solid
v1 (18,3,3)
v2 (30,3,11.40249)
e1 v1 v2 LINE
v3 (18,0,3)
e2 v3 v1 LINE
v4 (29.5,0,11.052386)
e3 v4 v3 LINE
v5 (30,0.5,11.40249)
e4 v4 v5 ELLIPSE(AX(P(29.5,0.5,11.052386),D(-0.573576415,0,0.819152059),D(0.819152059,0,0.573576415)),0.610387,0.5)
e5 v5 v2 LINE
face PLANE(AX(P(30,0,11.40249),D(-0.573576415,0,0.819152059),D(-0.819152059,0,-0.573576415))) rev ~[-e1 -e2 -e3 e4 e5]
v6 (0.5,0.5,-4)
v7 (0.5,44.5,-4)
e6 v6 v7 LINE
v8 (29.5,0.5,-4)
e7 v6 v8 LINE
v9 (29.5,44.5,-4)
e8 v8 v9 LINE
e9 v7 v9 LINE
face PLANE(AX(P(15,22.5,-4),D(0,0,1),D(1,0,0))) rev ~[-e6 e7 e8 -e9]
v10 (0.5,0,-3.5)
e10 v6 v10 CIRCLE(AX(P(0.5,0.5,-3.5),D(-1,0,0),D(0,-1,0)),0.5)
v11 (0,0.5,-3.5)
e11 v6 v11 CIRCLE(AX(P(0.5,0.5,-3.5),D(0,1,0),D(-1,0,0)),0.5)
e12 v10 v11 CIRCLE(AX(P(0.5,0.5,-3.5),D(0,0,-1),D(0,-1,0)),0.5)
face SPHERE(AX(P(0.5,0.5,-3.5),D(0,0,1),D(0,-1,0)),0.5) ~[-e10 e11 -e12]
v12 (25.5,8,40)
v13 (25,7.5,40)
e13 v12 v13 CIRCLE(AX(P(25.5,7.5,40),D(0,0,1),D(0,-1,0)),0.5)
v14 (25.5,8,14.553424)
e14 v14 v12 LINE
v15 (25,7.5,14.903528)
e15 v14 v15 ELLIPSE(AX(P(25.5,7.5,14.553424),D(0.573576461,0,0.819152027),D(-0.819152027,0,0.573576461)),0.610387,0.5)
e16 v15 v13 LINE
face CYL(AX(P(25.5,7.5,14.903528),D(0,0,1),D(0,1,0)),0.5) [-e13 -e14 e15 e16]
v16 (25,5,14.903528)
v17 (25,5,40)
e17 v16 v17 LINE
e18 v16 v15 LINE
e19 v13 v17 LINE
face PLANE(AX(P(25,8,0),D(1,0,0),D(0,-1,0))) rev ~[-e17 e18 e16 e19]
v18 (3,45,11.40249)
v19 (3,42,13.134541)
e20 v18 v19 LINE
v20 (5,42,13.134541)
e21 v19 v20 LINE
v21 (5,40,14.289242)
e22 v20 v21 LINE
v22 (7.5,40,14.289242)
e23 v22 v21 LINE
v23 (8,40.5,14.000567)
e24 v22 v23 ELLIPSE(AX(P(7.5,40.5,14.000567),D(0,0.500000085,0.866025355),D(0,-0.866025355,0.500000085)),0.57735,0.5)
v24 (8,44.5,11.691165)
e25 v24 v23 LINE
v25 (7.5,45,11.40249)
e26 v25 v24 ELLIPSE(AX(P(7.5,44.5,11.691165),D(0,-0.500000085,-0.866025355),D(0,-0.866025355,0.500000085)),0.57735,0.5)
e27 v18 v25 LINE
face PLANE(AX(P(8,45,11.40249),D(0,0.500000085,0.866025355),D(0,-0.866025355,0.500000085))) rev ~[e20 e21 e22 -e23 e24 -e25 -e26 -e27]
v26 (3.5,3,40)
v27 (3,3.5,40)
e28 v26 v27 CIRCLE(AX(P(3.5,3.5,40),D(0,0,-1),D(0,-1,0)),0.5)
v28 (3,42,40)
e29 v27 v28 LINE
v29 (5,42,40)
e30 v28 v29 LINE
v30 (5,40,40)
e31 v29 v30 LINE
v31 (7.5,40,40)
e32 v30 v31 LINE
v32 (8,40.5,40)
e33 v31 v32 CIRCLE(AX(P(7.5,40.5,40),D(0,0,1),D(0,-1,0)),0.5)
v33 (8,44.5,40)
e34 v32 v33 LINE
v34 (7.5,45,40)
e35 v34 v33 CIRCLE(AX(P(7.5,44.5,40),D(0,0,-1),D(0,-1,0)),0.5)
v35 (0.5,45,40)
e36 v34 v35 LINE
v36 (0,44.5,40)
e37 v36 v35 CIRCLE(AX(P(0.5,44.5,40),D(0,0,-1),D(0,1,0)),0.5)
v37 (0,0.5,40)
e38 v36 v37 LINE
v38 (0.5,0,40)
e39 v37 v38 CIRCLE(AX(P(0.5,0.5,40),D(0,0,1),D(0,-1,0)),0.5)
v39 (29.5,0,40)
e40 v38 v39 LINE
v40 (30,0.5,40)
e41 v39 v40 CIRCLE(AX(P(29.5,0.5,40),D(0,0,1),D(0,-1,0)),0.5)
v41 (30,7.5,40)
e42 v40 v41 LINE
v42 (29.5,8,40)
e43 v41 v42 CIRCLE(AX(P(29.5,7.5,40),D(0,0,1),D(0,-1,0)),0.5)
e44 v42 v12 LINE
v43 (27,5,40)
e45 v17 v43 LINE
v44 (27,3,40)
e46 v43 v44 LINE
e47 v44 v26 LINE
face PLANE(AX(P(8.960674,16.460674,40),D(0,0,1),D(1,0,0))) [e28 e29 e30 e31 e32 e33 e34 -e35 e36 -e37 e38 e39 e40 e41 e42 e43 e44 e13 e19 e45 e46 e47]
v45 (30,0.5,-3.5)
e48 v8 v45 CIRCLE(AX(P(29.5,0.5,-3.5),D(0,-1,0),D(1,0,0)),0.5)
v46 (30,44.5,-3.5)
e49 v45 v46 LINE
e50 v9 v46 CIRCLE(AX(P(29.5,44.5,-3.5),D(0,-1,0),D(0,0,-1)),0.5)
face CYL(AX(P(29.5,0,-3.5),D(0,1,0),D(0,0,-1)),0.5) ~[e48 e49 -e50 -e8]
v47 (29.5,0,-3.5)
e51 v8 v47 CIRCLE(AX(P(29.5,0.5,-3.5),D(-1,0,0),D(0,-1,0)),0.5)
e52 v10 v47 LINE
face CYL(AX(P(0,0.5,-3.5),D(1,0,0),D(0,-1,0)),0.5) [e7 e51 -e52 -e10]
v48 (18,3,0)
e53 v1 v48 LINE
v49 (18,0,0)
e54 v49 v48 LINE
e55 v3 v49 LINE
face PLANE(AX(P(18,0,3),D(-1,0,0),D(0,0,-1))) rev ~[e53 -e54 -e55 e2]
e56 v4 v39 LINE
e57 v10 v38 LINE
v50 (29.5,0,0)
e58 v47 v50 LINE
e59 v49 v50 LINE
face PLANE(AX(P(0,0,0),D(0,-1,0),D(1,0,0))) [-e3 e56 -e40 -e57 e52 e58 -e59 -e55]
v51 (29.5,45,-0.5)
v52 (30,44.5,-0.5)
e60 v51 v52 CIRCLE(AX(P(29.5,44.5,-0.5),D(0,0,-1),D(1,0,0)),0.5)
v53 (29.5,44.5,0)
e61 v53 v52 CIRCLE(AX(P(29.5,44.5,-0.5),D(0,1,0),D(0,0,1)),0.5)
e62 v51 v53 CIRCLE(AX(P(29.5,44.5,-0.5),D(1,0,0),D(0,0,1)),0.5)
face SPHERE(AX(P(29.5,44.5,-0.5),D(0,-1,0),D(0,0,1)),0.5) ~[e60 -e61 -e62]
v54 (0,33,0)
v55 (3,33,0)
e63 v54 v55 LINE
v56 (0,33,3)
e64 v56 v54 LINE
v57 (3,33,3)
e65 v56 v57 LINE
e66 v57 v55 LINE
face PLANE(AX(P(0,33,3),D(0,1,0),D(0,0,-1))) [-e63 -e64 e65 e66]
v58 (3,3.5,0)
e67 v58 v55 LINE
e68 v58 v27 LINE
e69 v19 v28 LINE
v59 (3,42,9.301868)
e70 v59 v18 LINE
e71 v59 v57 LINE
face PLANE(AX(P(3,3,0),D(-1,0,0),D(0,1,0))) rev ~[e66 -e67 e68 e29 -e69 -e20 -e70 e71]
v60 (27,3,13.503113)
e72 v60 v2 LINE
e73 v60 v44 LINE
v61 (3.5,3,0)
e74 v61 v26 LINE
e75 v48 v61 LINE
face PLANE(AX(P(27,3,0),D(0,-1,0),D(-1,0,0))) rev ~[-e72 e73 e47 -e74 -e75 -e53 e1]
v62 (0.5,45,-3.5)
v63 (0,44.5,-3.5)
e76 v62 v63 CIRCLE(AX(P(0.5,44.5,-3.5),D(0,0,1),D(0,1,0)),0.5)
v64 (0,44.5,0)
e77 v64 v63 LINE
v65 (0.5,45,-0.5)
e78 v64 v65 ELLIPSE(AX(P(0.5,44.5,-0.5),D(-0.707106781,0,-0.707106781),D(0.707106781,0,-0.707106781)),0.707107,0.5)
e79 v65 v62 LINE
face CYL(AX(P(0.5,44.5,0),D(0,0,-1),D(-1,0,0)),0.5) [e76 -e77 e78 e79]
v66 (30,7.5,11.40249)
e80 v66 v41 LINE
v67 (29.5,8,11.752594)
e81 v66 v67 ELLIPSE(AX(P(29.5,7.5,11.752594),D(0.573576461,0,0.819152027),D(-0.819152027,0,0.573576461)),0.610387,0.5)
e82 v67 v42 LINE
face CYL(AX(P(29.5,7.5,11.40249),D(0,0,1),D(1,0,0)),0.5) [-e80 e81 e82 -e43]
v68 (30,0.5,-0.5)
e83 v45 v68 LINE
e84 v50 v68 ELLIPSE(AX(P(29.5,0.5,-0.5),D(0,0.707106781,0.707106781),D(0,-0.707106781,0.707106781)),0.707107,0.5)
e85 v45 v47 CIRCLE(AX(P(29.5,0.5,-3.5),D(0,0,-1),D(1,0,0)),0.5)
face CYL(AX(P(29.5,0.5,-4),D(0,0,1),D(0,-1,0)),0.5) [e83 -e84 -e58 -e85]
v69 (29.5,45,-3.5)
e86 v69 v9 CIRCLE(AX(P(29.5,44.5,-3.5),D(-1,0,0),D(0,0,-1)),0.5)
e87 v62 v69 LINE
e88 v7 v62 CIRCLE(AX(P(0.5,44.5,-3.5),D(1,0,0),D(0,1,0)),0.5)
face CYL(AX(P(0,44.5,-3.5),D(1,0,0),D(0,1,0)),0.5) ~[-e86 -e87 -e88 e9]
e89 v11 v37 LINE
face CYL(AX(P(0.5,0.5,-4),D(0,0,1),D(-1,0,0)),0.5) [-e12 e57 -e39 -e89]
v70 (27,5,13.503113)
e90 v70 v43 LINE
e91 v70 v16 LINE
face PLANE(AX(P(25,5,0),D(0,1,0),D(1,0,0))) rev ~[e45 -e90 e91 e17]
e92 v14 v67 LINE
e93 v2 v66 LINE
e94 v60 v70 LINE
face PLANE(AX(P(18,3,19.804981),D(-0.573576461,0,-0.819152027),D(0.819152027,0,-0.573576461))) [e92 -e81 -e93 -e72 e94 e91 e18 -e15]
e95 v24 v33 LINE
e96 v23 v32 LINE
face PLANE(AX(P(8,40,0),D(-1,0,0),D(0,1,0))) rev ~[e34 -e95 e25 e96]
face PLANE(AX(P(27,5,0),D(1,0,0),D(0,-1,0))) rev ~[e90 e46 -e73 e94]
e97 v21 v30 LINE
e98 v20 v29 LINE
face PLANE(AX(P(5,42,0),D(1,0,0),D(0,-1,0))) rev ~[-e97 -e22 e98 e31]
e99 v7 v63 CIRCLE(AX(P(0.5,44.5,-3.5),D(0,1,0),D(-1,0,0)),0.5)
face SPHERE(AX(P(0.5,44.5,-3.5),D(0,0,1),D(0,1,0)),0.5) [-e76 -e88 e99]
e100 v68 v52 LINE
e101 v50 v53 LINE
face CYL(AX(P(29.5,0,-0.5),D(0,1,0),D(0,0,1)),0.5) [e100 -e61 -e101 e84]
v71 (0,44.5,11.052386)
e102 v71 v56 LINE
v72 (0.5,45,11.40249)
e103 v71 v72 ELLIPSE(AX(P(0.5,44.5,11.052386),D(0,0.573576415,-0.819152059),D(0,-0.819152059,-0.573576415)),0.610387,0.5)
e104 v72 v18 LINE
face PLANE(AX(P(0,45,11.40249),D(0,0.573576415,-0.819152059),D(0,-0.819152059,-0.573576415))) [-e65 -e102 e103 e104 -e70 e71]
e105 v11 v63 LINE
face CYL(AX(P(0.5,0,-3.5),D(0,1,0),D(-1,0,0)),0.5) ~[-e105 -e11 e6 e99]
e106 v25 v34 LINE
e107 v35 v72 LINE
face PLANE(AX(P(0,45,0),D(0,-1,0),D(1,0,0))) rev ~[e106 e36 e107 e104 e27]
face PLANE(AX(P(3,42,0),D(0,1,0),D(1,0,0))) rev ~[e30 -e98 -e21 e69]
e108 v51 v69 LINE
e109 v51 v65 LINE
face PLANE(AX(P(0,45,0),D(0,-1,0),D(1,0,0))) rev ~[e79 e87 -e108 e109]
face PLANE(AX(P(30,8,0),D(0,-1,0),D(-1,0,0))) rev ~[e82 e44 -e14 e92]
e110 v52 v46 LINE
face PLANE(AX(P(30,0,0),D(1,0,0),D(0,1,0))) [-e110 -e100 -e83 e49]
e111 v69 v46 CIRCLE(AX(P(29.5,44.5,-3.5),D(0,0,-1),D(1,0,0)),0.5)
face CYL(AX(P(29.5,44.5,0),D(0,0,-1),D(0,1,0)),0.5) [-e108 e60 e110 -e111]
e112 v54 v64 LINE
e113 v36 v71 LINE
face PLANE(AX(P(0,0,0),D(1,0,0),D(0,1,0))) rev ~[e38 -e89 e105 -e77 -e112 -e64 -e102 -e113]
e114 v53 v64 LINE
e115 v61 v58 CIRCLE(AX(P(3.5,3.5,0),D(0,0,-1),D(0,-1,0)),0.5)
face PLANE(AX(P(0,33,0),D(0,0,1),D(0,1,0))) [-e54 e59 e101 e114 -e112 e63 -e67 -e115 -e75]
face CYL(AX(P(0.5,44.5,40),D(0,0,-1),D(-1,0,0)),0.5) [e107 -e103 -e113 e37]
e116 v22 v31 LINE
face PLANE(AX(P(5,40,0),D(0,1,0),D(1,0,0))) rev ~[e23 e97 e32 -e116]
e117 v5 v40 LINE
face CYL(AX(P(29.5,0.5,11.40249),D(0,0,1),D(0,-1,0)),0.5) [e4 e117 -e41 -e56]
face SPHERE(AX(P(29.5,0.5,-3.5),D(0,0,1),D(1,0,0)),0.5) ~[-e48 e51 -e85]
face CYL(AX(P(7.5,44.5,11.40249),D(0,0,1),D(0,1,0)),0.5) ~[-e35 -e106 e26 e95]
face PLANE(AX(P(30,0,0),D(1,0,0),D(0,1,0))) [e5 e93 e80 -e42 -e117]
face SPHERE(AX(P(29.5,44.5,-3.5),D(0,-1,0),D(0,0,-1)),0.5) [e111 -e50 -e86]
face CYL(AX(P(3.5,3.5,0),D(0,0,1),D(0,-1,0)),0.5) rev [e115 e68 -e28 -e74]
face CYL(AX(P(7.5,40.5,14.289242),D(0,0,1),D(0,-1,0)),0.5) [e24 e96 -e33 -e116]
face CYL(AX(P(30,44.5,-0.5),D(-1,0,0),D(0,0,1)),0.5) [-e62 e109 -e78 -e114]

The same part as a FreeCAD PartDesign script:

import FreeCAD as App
import Part
import Sketcher
from FreeCAD import Vector
Q = App.Units.Quantity


def edges_at(feature, points):
    """Names of the edges that pass closest to the given points."""
    edges = feature.Shape.Edges
    near = lambda p: min(range(len(edges)), key=lambda i: edges[i].distToShape(Part.Vertex(*p))[0])
    return sorted({f"Edge{near(p) + 1}" for p in points})


def add_polygon(sketch, points):
    """Adds a closed chain of lines whose ends are joined by coincident constraints."""
    first, n = sketch.GeometryCount, len(points)
    for a, b in zip(points, points[1:] + points[:1]):
        sketch.addGeometry(Part.LineSegment(App.Vector(*a, 0), App.Vector(*b, 0)), False)
    for i in range(n):
        sketch.addConstraint(Sketcher.Constraint("Coincident", first + i, 2, first + (i + 1) % n, 1))

doc = App.newDocument("Part")
body = doc.addObject("PartDesign::Body", "Body")

sketch1 = doc.addObject("Sketcher::SketchObject", "Sketch")
body.addObject(sketch1)
sketch1.AttachmentSupport = (doc.XY_Plane, [""])
sketch1.MapMode = "FlatFace"
add_polygon(sketch1, [(0, 0), (30, 0), (30, 8), (25, 8), (25, 5), (27, 5), (27, 3), (3, 3), (3, 42), (5, 42), (5, 40), (8, 40), (8, 45), (0, 45)])
sketch1.addConstraint(Sketcher.Constraint("Horizontal", 0))
sketch1.addConstraint(Sketcher.Constraint("Vertical", 1))
sketch1.addConstraint(Sketcher.Constraint("Horizontal", 2))
sketch1.addConstraint(Sketcher.Constraint("Vertical", 3))
sketch1.addConstraint(Sketcher.Constraint("Horizontal", 4))
sketch1.addConstraint(Sketcher.Constraint("Vertical", 5))
sketch1.addConstraint(Sketcher.Constraint("Horizontal", 6))
sketch1.addConstraint(Sketcher.Constraint("Vertical", 7))
sketch1.addConstraint(Sketcher.Constraint("Horizontal", 8))
sketch1.addConstraint(Sketcher.Constraint("Vertical", 9))
sketch1.addConstraint(Sketcher.Constraint("Horizontal", 10))
sketch1.addConstraint(Sketcher.Constraint("Vertical", 11))
sketch1.addConstraint(Sketcher.Constraint("Horizontal", 12))
sketch1.addConstraint(Sketcher.Constraint("Vertical", 13))
sketch1.addConstraint(Sketcher.Constraint("Coincident", 13, 2, -1, 1))
sketch1.addConstraint(Sketcher.Constraint("Equal", 4, 8))
sketch1.addConstraint(Sketcher.Constraint("Equal", 12, 1))
sketch1.addConstraint(Sketcher.Constraint("Equal", 10, 3))
sketch1.addConstraint(Sketcher.Constraint("Equal", 8, 5))
sketch1.addConstraint(Sketcher.Constraint("Equal", 5, 9))
sketch1.addConstraint(Sketcher.Constraint("Equal", 2, 11))
sketch1.addConstraint(Sketcher.Constraint("DistanceX", 0, 1, 0, 2, Q("30 mm")))
sketch1.addConstraint(Sketcher.Constraint("DistanceX", 2, 2, 2, 1, Q("5 mm")))
sketch1.addConstraint(Sketcher.Constraint("DistanceX", 4, 1, 4, 2, Q("2 mm")))
sketch1.addConstraint(Sketcher.Constraint("DistanceX", 6, 2, 6, 1, Q("24 mm")))
sketch1.addConstraint(Sketcher.Constraint("DistanceX", 10, 1, 10, 2, Q("3 mm")))
sketch1.addConstraint(Sketcher.Constraint("DistanceY", 7, 1, 7, 2, Q("39 mm")))
pad1 = doc.addObject("PartDesign::Pad", "Pad")
body.addObject(pad1)
pad1.Profile = sketch1
pad1.Length = 40

sketch2 = doc.addObject("Sketcher::SketchObject", "Sketch001")
body.addObject(sketch2)
sketch2.AttachmentSupport = (doc.XY_Plane, [""])
sketch2.MapMode = "FlatFace"
add_polygon(sketch2, [(0, 45), (0, 0), (30, 0), (30, 45)])
sketch2.addConstraint(Sketcher.Constraint("Vertical", 0))
sketch2.addConstraint(Sketcher.Constraint("Horizontal", 1))
sketch2.addConstraint(Sketcher.Constraint("Vertical", 2))
sketch2.addConstraint(Sketcher.Constraint("Horizontal", 3))
sketch2.addConstraint(Sketcher.Constraint("Coincident", 0, 2, -1, 1))
sketch2.addConstraint(Sketcher.Constraint("DistanceX", 1, 1, 1, 2, Q("30 mm")))
sketch2.addConstraint(Sketcher.Constraint("DistanceY", 0, 2, 0, 1, Q("45 mm")))
pad2 = doc.addObject("PartDesign::Pad", "Pad001")
body.addObject(pad2)
pad2.Profile = sketch2
pad2.Length = 4
pad2.Reversed = True

sketch3 = doc.addObject("Sketcher::SketchObject", "Sketch002")
body.addObject(sketch3)
sketch3.AttachmentSupport = (doc.XZ_Plane, [""])
sketch3.MapMode = "FlatFace"
add_polygon(sketch3, [(18, 0), (30, 0), (30, 11.4), (18, 3)])
sketch3.addConstraint(Sketcher.Constraint("Horizontal", 0))
sketch3.addConstraint(Sketcher.Constraint("Vertical", 1))
sketch3.addConstraint(Sketcher.Constraint("Vertical", 3))
sketch3.addConstraint(Sketcher.Constraint("PointOnObject", 0, 2, -1))
sketch3.addConstraint(Sketcher.Constraint("DistanceX", 0, 1, 0, 2, Q("12 mm")))
sketch3.addConstraint(Sketcher.Constraint("DistanceY", 3, 2, 3, 1, Q("3 mm")))
sketch3.addConstraint(Sketcher.Constraint("Angle", 2, Q("-145.000001 deg")))
sketch3.addConstraint(Sketcher.Constraint("DistanceX", -1, 1, 0, 2, Q("30 mm")))
pocket1 = doc.addObject("PartDesign::Pocket", "Pocket")
body.addObject(pocket1)
pocket1.Profile = sketch3
pocket1.Type = "ThroughAll"

sketch4 = doc.addObject("Sketcher::SketchObject", "Sketch003")
body.addObject(sketch4)
sketch4.AttachmentSupport = (doc.XZ_Plane, [""])
sketch4.MapMode = "FlatFace"
sketch4.AttachmentOffset = App.Placement(Vector(0, 0, -3), App.Rotation())
add_polygon(sketch4, [(18, 3), (18, 20), (30, 11), (30, 3)])
sketch4.addConstraint(Sketcher.Constraint("Vertical", 0))
sketch4.addConstraint(Sketcher.Constraint("Vertical", 2))
sketch4.addConstraint(Sketcher.Constraint("Horizontal", 3))
sketch4.addConstraint(Sketcher.Constraint("DistanceX", 3, 2, 3, 1, Q("12 mm")))
sketch4.addConstraint(Sketcher.Constraint("Angle", 1, Q("-35.000002 deg")))
sketch4.addConstraint(Sketcher.Constraint("DistanceX", -1, 1, 0, 2, Q("18 mm")))
sketch4.addConstraint(Sketcher.Constraint("DistanceY", -1, 1, 2, 2, Q("3 mm")))
sketch4.addConstraint(Sketcher.Constraint("DistanceY", 0, 1, 0, 2, Q("16.804981 mm")))
pocket2 = doc.addObject("PartDesign::Pocket", "Pocket001")
body.addObject(pocket2)
pocket2.Profile = sketch4
pocket2.Type = "ThroughAll"

sketch5 = doc.addObject("Sketcher::SketchObject", "Sketch004")
body.addObject(sketch5)
sketch5.AttachmentSupport = (doc.YZ_Plane, [""])
sketch5.MapMode = "FlatFace"
add_polygon(sketch5, [(33, 0), (45, 0), (45, 11.4), (33, 3)])
sketch5.addConstraint(Sketcher.Constraint("Horizontal", 0))
sketch5.addConstraint(Sketcher.Constraint("Vertical", 1))
sketch5.addConstraint(Sketcher.Constraint("Vertical", 3))
sketch5.addConstraint(Sketcher.Constraint("PointOnObject", 0, 2, -1))
sketch5.addConstraint(Sketcher.Constraint("DistanceX", 0, 1, 0, 2, Q("12 mm")))
sketch5.addConstraint(Sketcher.Constraint("DistanceY", 3, 2, 3, 1, Q("3 mm")))
sketch5.addConstraint(Sketcher.Constraint("Angle", 2, Q("-145.000001 deg")))
sketch5.addConstraint(Sketcher.Constraint("DistanceX", -1, 1, 0, 2, Q("45 mm")))
pocket3 = doc.addObject("PartDesign::Pocket", "Pocket002")
body.addObject(pocket3)
pocket3.Profile = sketch5
pocket3.Type = "ThroughAll"
pocket3.Reversed = True

sketch6 = doc.addObject("Sketcher::SketchObject", "Sketch005")
body.addObject(sketch6)
sketch6.AttachmentSupport = (doc.YZ_Plane, [""])
sketch6.MapMode = "FlatFace"
sketch6.AttachmentOffset = App.Placement(Vector(0, 0, 8), App.Rotation())
add_polygon(sketch6, [(40, 8), (45, 11), (40, 14)])
sketch6.addConstraint(Sketcher.Constraint("Vertical", 2))
sketch6.addConstraint(Sketcher.Constraint("Angle", 0, Q("34.999995 deg")))
sketch6.addConstraint(Sketcher.Constraint("Angle", 1, Q("149.999994 deg")))
sketch6.addConstraint(Sketcher.Constraint("DistanceX", -1, 1, 0, 2, Q("45 mm")))
sketch6.addConstraint(Sketcher.Constraint("DistanceX", -1, 1, 1, 2, Q("40 mm")))
sketch6.addConstraint(Sketcher.Constraint("DistanceY", -1, 1, 0, 2, Q("11.40249 mm")))
pocket4 = doc.addObject("PartDesign::Pocket", "Pocket003")
body.addObject(pocket4)
pocket4.Profile = sketch6
pocket4.Length = 5
doc.recompute()

fillet = doc.addObject("PartDesign::Fillet", "Fillet")
body.addObject(fillet)
fillet.Base = (pocket4, edges_at(pocket4, [
    (0, 45, 25.701),
    (0, 45, -2),
    (0, 0, 18),
    (30, 0, 25.701),
    (30, 0, -2),
    (30, 8, 25.701),
    (8, 40, 27.145),
    (8, 45, 25.701),
    (30, 22.5, 0),
    (30, 22.5, -4),
    (15, 45, 0),
    (15, 45, -4),
    (30, 45, -2),
    (25, 8, 27.452),
    (15, 0, -4),
    (0, 22.5, -4),
    (3, 3, 20),
]))
fillet.Radius = 0.5

doc.recompute()
